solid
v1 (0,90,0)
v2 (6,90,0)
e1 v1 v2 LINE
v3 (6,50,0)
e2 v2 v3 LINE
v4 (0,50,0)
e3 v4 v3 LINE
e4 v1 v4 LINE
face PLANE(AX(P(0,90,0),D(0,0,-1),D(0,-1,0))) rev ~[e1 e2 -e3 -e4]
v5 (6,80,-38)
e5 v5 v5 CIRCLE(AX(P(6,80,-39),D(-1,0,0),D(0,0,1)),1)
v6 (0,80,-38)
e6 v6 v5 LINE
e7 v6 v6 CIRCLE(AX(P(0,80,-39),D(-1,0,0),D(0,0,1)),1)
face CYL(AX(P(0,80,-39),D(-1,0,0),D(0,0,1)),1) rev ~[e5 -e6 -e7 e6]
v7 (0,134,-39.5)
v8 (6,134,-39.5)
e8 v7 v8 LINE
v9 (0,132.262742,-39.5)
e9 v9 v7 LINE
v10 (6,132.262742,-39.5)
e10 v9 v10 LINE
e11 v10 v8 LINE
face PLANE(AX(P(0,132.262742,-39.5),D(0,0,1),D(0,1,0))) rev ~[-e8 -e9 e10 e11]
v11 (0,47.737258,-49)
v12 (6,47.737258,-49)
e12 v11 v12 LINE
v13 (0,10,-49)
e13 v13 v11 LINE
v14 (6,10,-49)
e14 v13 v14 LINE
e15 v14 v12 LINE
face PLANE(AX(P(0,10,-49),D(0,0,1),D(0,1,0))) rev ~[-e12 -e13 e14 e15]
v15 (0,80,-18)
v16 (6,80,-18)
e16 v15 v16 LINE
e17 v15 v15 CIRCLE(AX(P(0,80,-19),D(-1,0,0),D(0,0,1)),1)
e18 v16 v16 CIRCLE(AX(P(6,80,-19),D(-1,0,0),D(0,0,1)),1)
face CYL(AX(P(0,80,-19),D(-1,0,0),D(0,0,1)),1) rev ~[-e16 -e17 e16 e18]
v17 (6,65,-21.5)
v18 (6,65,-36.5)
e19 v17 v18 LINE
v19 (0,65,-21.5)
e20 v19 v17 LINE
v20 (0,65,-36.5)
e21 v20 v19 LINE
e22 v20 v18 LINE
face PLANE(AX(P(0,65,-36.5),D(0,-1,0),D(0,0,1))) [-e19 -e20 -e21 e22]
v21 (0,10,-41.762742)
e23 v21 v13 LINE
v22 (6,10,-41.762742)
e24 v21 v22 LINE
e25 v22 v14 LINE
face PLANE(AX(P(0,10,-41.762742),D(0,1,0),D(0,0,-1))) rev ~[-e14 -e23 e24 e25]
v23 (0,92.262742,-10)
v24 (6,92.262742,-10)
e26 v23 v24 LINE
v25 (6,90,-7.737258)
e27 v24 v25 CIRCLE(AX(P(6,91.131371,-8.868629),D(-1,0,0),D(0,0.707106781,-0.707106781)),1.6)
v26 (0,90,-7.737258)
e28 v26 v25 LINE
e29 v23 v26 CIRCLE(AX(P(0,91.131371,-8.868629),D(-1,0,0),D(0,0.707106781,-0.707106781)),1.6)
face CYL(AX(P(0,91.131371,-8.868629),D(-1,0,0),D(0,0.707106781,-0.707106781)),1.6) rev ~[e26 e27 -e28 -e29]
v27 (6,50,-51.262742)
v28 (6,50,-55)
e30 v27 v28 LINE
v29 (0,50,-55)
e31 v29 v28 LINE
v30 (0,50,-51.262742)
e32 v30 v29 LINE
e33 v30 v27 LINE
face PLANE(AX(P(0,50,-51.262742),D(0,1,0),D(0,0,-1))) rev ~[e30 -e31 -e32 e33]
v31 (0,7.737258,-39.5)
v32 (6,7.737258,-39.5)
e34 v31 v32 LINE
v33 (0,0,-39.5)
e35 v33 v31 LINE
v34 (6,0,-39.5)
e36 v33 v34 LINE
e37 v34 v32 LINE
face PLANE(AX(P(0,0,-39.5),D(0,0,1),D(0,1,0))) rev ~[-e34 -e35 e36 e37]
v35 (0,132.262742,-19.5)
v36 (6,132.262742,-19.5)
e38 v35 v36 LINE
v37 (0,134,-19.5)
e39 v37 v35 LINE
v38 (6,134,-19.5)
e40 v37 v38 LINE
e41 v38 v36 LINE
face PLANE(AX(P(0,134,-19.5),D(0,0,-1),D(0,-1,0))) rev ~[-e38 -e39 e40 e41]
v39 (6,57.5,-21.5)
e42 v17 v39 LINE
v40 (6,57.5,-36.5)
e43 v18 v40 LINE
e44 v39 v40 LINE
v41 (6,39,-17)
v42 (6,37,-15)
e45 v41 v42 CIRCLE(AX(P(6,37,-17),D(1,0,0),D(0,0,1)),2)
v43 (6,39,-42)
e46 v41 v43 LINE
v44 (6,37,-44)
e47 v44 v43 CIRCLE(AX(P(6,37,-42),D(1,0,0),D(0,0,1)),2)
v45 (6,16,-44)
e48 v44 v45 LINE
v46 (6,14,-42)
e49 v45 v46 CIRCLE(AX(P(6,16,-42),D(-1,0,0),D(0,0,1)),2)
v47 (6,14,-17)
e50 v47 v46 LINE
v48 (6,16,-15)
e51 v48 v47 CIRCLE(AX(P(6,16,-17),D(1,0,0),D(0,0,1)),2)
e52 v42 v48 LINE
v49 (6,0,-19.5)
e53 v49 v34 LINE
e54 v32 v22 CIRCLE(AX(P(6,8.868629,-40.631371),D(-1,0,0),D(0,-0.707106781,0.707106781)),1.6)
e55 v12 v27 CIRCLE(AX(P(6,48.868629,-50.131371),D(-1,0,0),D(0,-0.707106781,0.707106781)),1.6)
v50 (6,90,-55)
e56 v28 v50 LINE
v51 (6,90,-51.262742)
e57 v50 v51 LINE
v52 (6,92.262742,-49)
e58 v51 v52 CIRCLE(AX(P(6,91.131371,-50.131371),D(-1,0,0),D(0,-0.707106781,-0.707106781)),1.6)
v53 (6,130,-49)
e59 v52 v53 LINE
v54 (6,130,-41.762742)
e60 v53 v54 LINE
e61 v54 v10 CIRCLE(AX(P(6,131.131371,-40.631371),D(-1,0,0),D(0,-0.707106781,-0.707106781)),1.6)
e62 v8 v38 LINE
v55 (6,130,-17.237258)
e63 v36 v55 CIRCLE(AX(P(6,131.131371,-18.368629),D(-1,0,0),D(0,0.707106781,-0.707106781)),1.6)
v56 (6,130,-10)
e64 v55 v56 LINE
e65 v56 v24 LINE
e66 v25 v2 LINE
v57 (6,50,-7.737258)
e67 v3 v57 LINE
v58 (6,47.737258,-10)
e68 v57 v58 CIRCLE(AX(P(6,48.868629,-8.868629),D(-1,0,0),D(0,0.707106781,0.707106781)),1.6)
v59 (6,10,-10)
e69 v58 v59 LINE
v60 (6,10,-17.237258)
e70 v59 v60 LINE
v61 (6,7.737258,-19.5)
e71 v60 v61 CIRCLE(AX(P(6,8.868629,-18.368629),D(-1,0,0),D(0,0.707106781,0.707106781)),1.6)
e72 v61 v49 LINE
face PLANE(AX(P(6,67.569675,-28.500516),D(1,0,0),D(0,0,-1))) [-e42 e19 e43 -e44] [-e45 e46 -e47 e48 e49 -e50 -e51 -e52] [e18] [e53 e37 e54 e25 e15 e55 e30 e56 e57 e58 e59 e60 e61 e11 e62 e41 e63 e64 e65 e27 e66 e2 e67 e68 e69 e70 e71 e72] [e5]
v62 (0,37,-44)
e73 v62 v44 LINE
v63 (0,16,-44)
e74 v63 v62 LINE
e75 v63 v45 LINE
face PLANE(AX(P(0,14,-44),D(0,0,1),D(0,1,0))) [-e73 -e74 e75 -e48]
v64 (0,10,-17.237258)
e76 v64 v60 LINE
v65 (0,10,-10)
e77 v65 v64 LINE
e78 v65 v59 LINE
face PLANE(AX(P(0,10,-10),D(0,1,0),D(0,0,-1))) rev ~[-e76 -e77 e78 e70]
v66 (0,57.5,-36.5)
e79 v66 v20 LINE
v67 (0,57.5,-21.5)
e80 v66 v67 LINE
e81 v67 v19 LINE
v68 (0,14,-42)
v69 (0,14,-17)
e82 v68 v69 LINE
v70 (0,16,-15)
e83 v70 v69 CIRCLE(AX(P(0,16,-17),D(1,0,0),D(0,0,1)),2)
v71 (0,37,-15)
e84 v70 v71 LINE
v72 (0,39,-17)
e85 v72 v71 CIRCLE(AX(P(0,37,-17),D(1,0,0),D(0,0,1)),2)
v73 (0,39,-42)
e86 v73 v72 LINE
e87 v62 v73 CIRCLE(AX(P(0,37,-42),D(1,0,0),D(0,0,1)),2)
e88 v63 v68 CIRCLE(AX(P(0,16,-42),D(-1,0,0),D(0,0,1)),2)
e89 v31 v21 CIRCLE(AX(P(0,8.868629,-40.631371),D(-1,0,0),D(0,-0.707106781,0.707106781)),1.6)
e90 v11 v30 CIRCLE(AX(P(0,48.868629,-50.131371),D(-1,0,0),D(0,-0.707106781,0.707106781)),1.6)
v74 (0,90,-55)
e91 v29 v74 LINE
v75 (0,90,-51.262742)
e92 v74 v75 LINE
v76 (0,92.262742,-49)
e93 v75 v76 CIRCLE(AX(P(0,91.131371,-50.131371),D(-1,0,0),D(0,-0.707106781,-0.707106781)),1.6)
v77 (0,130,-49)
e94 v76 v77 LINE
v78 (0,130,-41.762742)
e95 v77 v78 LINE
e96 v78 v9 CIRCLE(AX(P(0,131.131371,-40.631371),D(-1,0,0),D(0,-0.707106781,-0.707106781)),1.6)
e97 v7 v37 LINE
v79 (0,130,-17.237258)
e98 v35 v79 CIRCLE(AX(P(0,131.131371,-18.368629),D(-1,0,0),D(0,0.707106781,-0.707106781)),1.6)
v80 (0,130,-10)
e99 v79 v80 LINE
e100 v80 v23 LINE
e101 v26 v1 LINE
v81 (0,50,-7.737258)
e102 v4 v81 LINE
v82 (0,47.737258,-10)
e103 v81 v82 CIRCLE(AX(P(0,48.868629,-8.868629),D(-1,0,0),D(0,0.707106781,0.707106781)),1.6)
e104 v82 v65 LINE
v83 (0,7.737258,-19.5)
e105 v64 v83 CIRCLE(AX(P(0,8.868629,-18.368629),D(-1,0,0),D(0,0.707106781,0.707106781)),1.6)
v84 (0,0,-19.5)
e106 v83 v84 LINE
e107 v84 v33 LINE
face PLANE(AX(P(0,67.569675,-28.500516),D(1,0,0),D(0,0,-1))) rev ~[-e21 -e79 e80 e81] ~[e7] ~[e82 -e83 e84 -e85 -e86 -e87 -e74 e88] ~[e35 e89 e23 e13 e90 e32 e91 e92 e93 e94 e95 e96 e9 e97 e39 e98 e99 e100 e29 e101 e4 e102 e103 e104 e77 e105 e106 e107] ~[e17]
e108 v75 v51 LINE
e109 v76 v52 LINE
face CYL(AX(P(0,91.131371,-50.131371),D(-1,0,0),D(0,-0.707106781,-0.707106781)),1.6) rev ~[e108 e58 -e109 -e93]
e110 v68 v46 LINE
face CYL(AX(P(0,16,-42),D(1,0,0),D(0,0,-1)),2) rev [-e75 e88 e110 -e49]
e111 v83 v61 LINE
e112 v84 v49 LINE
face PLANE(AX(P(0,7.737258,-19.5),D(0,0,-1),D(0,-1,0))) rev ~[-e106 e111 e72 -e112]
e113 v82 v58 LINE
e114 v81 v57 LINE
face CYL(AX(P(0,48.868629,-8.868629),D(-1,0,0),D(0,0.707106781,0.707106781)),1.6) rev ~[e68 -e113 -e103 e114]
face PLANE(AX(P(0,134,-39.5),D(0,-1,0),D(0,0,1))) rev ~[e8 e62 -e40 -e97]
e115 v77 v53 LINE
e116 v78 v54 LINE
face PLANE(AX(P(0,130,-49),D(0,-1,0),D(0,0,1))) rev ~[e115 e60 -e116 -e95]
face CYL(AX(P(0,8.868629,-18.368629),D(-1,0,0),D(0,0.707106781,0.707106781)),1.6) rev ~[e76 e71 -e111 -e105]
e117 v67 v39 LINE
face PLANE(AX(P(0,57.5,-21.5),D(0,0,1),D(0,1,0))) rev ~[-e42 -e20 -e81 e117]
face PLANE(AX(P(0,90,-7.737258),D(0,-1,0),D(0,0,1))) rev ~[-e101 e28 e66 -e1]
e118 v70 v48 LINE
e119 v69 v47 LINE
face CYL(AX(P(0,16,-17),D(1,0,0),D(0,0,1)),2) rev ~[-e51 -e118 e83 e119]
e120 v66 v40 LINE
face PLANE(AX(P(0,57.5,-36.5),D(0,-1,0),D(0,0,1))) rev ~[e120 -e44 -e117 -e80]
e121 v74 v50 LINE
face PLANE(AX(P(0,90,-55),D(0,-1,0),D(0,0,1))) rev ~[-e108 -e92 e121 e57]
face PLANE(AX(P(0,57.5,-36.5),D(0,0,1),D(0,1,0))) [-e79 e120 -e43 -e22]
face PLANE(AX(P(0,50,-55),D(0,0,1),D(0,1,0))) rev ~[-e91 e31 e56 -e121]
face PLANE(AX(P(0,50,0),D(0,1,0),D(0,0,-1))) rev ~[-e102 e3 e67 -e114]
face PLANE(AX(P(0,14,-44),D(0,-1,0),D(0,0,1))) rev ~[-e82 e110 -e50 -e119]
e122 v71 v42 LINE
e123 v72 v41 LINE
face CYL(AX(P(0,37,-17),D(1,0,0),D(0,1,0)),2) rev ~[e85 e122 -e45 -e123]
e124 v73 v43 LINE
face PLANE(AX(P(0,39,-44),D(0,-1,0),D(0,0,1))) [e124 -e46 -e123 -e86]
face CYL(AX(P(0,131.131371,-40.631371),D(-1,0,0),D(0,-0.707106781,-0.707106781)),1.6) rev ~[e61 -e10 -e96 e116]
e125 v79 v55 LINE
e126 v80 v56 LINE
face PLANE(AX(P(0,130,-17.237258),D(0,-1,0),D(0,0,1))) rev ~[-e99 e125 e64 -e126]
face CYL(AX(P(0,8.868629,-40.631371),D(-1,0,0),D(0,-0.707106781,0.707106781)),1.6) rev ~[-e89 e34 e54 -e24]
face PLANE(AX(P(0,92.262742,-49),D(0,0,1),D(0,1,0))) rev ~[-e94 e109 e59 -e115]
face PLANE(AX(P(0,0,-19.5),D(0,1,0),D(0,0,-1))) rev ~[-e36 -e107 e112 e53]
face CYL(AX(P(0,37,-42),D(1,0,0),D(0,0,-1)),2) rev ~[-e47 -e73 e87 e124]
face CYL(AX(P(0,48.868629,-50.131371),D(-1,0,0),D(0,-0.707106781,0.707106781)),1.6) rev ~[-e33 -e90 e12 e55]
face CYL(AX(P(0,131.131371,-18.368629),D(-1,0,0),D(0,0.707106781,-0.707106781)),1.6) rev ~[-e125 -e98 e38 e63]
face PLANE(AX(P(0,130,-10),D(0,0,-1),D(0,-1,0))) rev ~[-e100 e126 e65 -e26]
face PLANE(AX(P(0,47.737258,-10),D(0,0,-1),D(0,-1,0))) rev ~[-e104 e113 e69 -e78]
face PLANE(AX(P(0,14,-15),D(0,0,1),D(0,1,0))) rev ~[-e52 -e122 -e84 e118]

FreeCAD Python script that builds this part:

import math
import FreeCAD as App
import Part
import Sketcher

V = App.Vector
Q = App.Units.Quantity


def edges_at(feature, points):
    """Names of the edges that pass closest to the given points."""
    edges = feature.Shape.Edges
    near = lambda p: min(range(len(edges)), key=lambda i: edges[i].distToShape(Part.Vertex(*p))[0])
    return sorted({f"Edge{near(p) + 1}" for p in points})


def add_polygon(sketch, points):
    """Adds a closed chain of lines whose ends are joined by coincident constraints."""
    first, n = sketch.GeometryCount, len(points)
    for a, b in zip(points, points[1:] + points[:1]):
        sketch.addGeometry(Part.LineSegment(App.Vector(*a, 0), App.Vector(*b, 0)), False)
    for i in range(n):
        sketch.addConstraint(Sketcher.Constraint("Coincident", first + i, 2, first + (i + 1) % n, 1))

doc = App.newDocument("Part")
body = doc.addObject("PartDesign::Body", "Body")

# Sketch on YZ plane
sketch1 = body.newObject("Sketcher::SketchObject", "Sketch")
sketch1.AttachmentSupport = (doc.getObject("YZ_Plane"), [""])
sketch1.MapMode = "FlatFace"
sketch1.addGeometry(Part.LineSegment(V(7.7, -19.5, 0), V(0, -19.5, 0)), False)
sketch1.addGeometry(Part.LineSegment(V(0, -19.5, 0), V(0, -39.5, 0)), False)
sketch1.addGeometry(Part.LineSegment(V(0, -39.5, 0), V(7.7, -39.5, 0)), False)
sketch1.addGeometry(Part.ArcOfCircle(Part.Circle(V(8.9, -40.6, 0), V(0, 0, 1), 1.6), math.radians(-45), math.radians(135)), False)
sketch1.addGeometry(Part.LineSegment(V(10, -41.8, 0), V(10, -49, 0)), False)
sketch1.addGeometry(Part.LineSegment(V(10, -49, 0), V(47.7, -49, 0)), False)
sketch1.addGeometry(Part.ArcOfCircle(Part.Circle(V(48.9, -50.1, 0), V(0, 0, 1), 1.6), math.radians(-45), math.radians(135)), False)
sketch1.addGeometry(Part.LineSegment(V(50, -51.3, 0), V(50, -55, 0)), False)
sketch1.addGeometry(Part.LineSegment(V(50, -55, 0), V(90, -55, 0)), False)
sketch1.addGeometry(Part.LineSegment(V(90, -55, 0), V(90, -51.3, 0)), False)
sketch1.addGeometry(Part.ArcOfCircle(Part.Circle(V(91.1, -50.1, 0), V(0, 0, 1), 1.6), math.radians(45), math.radians(225)), False)
sketch1.addGeometry(Part.LineSegment(V(92.3, -49, 0), V(130, -49, 0)), False)
sketch1.addGeometry(Part.LineSegment(V(130, -49, 0), V(130, -41.8, 0)), False)
sketch1.addGeometry(Part.ArcOfCircle(Part.Circle(V(131.1, -40.6, 0), V(0, 0, 1), 1.6), math.radians(45), math.radians(225)), False)
sketch1.addGeometry(Part.LineSegment(V(132.3, -39.5, 0), V(134, -39.5, 0)), False)
sketch1.addGeometry(Part.LineSegment(V(134, -39.5, 0), V(134, -19.5, 0)), False)
sketch1.addGeometry(Part.LineSegment(V(134, -19.5, 0), V(132.3, -19.5, 0)), False)
sketch1.addGeometry(Part.ArcOfCircle(Part.Circle(V(131.1, -18.4, 0), V(0, 0, 1), 1.6), math.radians(135), math.radians(315)), False)
sketch1.addGeometry(Part.LineSegment(V(130, -17.2, 0), V(130, -10, 0)), False)
sketch1.addGeometry(Part.LineSegment(V(130, -10, 0), V(92.3, -10, 0)), False)
sketch1.addGeometry(Part.ArcOfCircle(Part.Circle(V(91.1, -8.9, 0), V(0, 0, 1), 1.6), math.radians(135), math.radians(315)), False)
sketch1.addGeometry(Part.LineSegment(V(90, -7.7, 0), V(90, 0, 0)), False)
sketch1.addGeometry(Part.LineSegment(V(90, 0, 0), V(50, 0, 0)), False)
sketch1.addGeometry(Part.LineSegment(V(50, 0, 0), V(50, -7.7, 0)), False)
sketch1.addGeometry(Part.ArcOfCircle(Part.Circle(V(48.9, -8.9, 0), V(0, 0, 1), 1.6), math.radians(-135), math.radians(45)), False)
sketch1.addGeometry(Part.LineSegment(V(47.7, -10, 0), V(10, -10, 0)), False)
sketch1.addGeometry(Part.LineSegment(V(10, -10, 0), V(10, -17.2, 0)), False)
sketch1.addGeometry(Part.ArcOfCircle(Part.Circle(V(8.9, -18.4, 0), V(0, 0, 1), 1.6), math.radians(-135), math.radians(45)), False)
sketch1.addConstraint(Sketcher.Constraint("Coincident", 0, 2, 1, 1))
sketch1.addConstraint(Sketcher.Constraint("Coincident", 1, 2, 2, 1))
sketch1.addConstraint(Sketcher.Constraint("Coincident", 2, 2, 3, 2))
sketch1.addConstraint(Sketcher.Constraint("Coincident", 3, 1, 4, 1))
sketch1.addConstraint(Sketcher.Constraint("Coincident", 4, 2, 5, 1))
sketch1.addConstraint(Sketcher.Constraint("Coincident", 5, 2, 6, 2))
sketch1.addConstraint(Sketcher.Constraint("Coincident", 6, 1, 7, 1))
sketch1.addConstraint(Sketcher.Constraint("Coincident", 7, 2, 8, 1))
sketch1.addConstraint(Sketcher.Constraint("Coincident", 8, 2, 9, 1))
sketch1.addConstraint(Sketcher.Constraint("Coincident", 9, 2, 10, 2))
sketch1.addConstraint(Sketcher.Constraint("Coincident", 10, 1, 11, 1))
sketch1.addConstraint(Sketcher.Constraint("Coincident", 11, 2, 12, 1))
sketch1.addConstraint(Sketcher.Constraint("Coincident", 12, 2, 13, 2))
sketch1.addConstraint(Sketcher.Constraint("Coincident", 13, 1, 14, 1))
sketch1.addConstraint(Sketcher.Constraint("Coincident", 14, 2, 15, 1))
sketch1.addConstraint(Sketcher.Constraint("Coincident", 15, 2, 16, 1))
sketch1.addConstraint(Sketcher.Constraint("Coincident", 16, 2, 17, 2))
sketch1.addConstraint(Sketcher.Constraint("Coincident", 17, 1, 18, 1))
sketch1.addConstraint(Sketcher.Constraint("Coincident", 18, 2, 19, 1))
sketch1.addConstraint(Sketcher.Constraint("Coincident", 19, 2, 20, 2))
sketch1.addConstraint(Sketcher.Constraint("Coincident", 20, 1, 21, 1))
sketch1.addConstraint(Sketcher.Constraint("Coincident", 21, 2, 22, 1))
sketch1.addConstraint(Sketcher.Constraint("Coincident", 22, 2, 23, 1))
sketch1.addConstraint(Sketcher.Constraint("Coincident", 23, 2, 24, 2))
sketch1.addConstraint(Sketcher.Constraint("Coincident", 24, 1, 25, 1))
sketch1.addConstraint(Sketcher.Constraint("Coincident", 25, 2, 26, 1))
sketch1.addConstraint(Sketcher.Constraint("Coincident", 26, 2, 27, 2))
sketch1.addConstraint(Sketcher.Constraint("Coincident", 27, 1, 0, 1))
sketch1.addConstraint(Sketcher.Constraint("Horizontal", 0))
sketch1.addConstraint(Sketcher.Constraint("Vertical", 1))
sketch1.addConstraint(Sketcher.Constraint("Horizontal", 2))
sketch1.addConstraint(Sketcher.Constraint("Vertical", 4))
sketch1.addConstraint(Sketcher.Constraint("Horizontal", 5))
sketch1.addConstraint(Sketcher.Constraint("Vertical", 7))
sketch1.addConstraint(Sketcher.Constraint("Horizontal", 8))
sketch1.addConstraint(Sketcher.Constraint("Vertical", 9))
sketch1.addConstraint(Sketcher.Constraint("Horizontal", 11))
sketch1.addConstraint(Sketcher.Constraint("Vertical", 12))
sketch1.addConstraint(Sketcher.Constraint("Horizontal", 14))
sketch1.addConstraint(Sketcher.Constraint("Vertical", 15))
sketch1.addConstraint(Sketcher.Constraint("Horizontal", 16))
sketch1.addConstraint(Sketcher.Constraint("Vertical", 18))
sketch1.addConstraint(Sketcher.Constraint("Horizontal", 19))
sketch1.addConstraint(Sketcher.Constraint("Vertical", 21))
sketch1.addConstraint(Sketcher.Constraint("Horizontal", 22))
sketch1.addConstraint(Sketcher.Constraint("Vertical", 23))
sketch1.addConstraint(Sketcher.Constraint("Horizontal", 25))
sketch1.addConstraint(Sketcher.Constraint("Vertical", 26))
sketch1.addConstraint(Sketcher.Constraint("Equal", 3, 6))
sketch1.addConstraint(Sketcher.Constraint("Equal", 6, 10))
sketch1.addConstraint(Sketcher.Constraint("Equal", 10, 13))
sketch1.addConstraint(Sketcher.Constraint("Equal", 13, 17))
sketch1.addConstraint(Sketcher.Constraint("Equal", 17, 20))
sketch1.addConstraint(Sketcher.Constraint("Equal", 20, 24))
sketch1.addConstraint(Sketcher.Constraint("Equal", 24, 27))
sketch1.addConstraint(Sketcher.Constraint("PointOnObject", 0, 2, -2))
sketch1.addConstraint(Sketcher.Constraint("PointOnObject", 21, 2, -1))
sketch1.addConstraint(Sketcher.Constraint("Horizontal", 6, 3, 10, 3))
sketch1.addConstraint(Sketcher.Constraint("Horizontal", 3, 3, 13, 3))
sketch1.addConstraint(Sketcher.Constraint("Horizontal", 20, 3, 24, 3))
sketch1.addConstraint(Sketcher.Constraint("Horizontal", 17, 3, 27, 3))
sketch1.addConstraint(Sketcher.Constraint("Horizontal", 6, 1, 9, 2))
sketch1.addConstraint(Sketcher.Constraint("Horizontal", 5, 2, 10, 1))
sketch1.addConstraint(Sketcher.Constraint("Horizontal", 3, 1, 12, 2))
sketch1.addConstraint(Sketcher.Constraint("Horizontal", 2, 2, 13, 1))
sketch1.addConstraint(Sketcher.Constraint("Horizontal", 0, 2, 15, 2))
sketch1.addConstraint(Sketcher.Constraint("Horizontal", 20, 1, 23, 2))
sketch1.addConstraint(Sketcher.Constraint("Horizontal", 19, 2, 24, 1))
sketch1.addConstraint(Sketcher.Constraint("Horizontal", 17, 1, 26, 2))
sketch1.addConstraint(Sketcher.Constraint("Vertical", 13, 3, 17, 3))
sketch1.addConstraint(Sketcher.Constraint("Vertical", 10, 3, 20, 3))
sketch1.addConstraint(Sketcher.Constraint("Vertical", 6, 3, 24, 3))
sketch1.addConstraint(Sketcher.Constraint("Vertical", 3, 3, 27, 3))
sketch1.addConstraint(Sketcher.Constraint("Vertical", 13, 1, 16, 2))
sketch1.addConstraint(Sketcher.Constraint("Vertical", 12, 2, 17, 1))
sketch1.addConstraint(Sketcher.Constraint("Vertical", 10, 1, 19, 2))
sketch1.addConstraint(Sketcher.Constraint("Vertical", 9, 2, 20, 1))
sketch1.addConstraint(Sketcher.Constraint("Equal", 5, 11))
sketch1.addConstraint(Sketcher.Constraint("Equal", 12, 18))
sketch1.addConstraint(Sketcher.Constraint("Equal", 2, 21))
sketch1.addConstraint(Sketcher.Constraint("Radius", 3, Q("1.6 mm")))
sketch1.addConstraint(Sketcher.Constraint("DistanceX", 8, 1, 8, 2, Q("40 mm")))
sketch1.addConstraint(Sketcher.Constraint("DistanceY", 1, 2, 1, 1, Q("20 mm")))
sketch1.addConstraint(Sketcher.Constraint("DistanceX", -1, 1, 3, 1, Q("10 mm")))
sketch1.addConstraint(Sketcher.Constraint("DistanceY", 4, 2, -1, 1, Q("49 mm")))
sketch1.addConstraint(Sketcher.Constraint("DistanceX", -1, 1, 6, 1, Q("50 mm")))
sketch1.addConstraint(Sketcher.Constraint("DistanceY", 7, 2, -1, 1, Q("55 mm")))
sketch1.addConstraint(Sketcher.Constraint("DistanceX", -1, 1, 14, 2, Q("134 mm")))
sketch1.addConstraint(Sketcher.Constraint("DistanceY", 18, 2, -1, 1, Q("10 mm")))
sketch1.addConstraint(Sketcher.Constraint("DistanceX", 3, 3, 6, 3, Q("40 mm")))
sketch1.addConstraint(Sketcher.Constraint("DistanceX", 10, 1, 13, 1, Q("40 mm")))
sketch1.addConstraint(Sketcher.Constraint("DistanceX", -1, 1, 3, 3, Q("8.868629 mm")))
pad1 = body.newObject("PartDesign::Pad", "Pad")
pad1.Profile = sketch1
pad1.Length = 6

# Sketch on YZ plane
sketch2 = body.newObject("Sketcher::SketchObject", "Sketch001")
sketch2.AttachmentSupport = (doc.getObject("YZ_Plane"), [""])
sketch2.MapMode = "FlatFace"
sketch2.addGeometry(Part.Circle(V(80, -39, 0), V(0, 0, 1), 1), False)  # 0
sketch2.addGeometry(Part.Circle(V(80, -19, 0), V(0, 0, 1), 1), False)  # 1
add_polygon(sketch2, [(39, -44), (14, -44), (14, -15), (39, -15)])  # lines 2-5
sketch2.addConstraint(Sketcher.Constraint("Horizontal", 2))
sketch2.addConstraint(Sketcher.Constraint("Vertical", 3))
sketch2.addConstraint(Sketcher.Constraint("Horizontal", 4))
sketch2.addConstraint(Sketcher.Constraint("Vertical", 5))
sketch2.addConstraint(Sketcher.Constraint("Equal", 0, 1))
sketch2.addConstraint(Sketcher.Constraint("Vertical", 0, 3, 1, 3))
sketch2.addConstraint(Sketcher.Constraint("Diameter", 0, Q("2 mm")))
sketch2.addConstraint(Sketcher.Constraint("DistanceX", 2, 2, 2, 1, Q("25 mm")))
sketch2.addConstraint(Sketcher.Constraint("DistanceY", 3, 1, 3, 2, Q("29 mm")))
sketch2.addConstraint(Sketcher.Constraint("DistanceX", -1, 1, 0, 3, Q("80 mm")))
sketch2.addConstraint(Sketcher.Constraint("DistanceY", 0, 3, -1, 1, Q("39 mm")))
sketch2.addConstraint(Sketcher.Constraint("DistanceY", 1, 3, -1, 1, Q("19 mm")))
sketch2.addConstraint(Sketcher.Constraint("DistanceX", -1, 1, 2, 2, Q("14 mm")))
sketch2.addConstraint(Sketcher.Constraint("DistanceY", 2, 2, -1, 1, Q("44 mm")))
pocket1 = body.newObject("PartDesign::Pocket", "Pocket")
pocket1.Profile = sketch2
pocket1.Type = "ThroughAll"
pocket1.Reversed = True
doc.recompute()

fillet = body.newObject("PartDesign::Fillet", "Fillet")
fillet.Base = (pocket1, edges_at(pocket1, [
    (3, 39, -15),
    (3, 14, -15),
    (3, 14, -44),
    (3, 39, -44),
]))
fillet.Radius = 2

# Sketch on YZ plane
sketch3 = body.newObject("Sketcher::SketchObject", "Sketch002")
sketch3.AttachmentSupport = (doc.getObject("YZ_Plane"), [""])
sketch3.MapMode = "FlatFace"
add_polygon(sketch3, [(65, -36), (58, -36), (58, -22), (65, -22)])  # lines 0-3
sketch3.addConstraint(Sketcher.Constraint("Horizontal", 0))
sketch3.addConstraint(Sketcher.Constraint("Vertical", 1))
sketch3.addConstraint(Sketcher.Constraint("Horizontal", 2))
sketch3.addConstraint(Sketcher.Constraint("Vertical", 3))
sketch3.addConstraint(Sketcher.Constraint("DistanceY", 1, 1, 1, 2, Q("15 mm")))
sketch3.addConstraint(Sketcher.Constraint("DistanceX", 0, 2, 0, 1, Q("7.5 mm")))
sketch3.addConstraint(Sketcher.Constraint("DistanceX", -1, 1, 2, 2, Q("65 mm")))
sketch3.addConstraint(Sketcher.Constraint("DistanceY", 0, 2, -1, 1, Q("36.5 mm")))
pocket2 = body.newObject("PartDesign::Pocket", "Pocket001")
pocket2.Profile = sketch3
pocket2.Type = "ThroughAll"
pocket2.Reversed = True

doc.recompute()
